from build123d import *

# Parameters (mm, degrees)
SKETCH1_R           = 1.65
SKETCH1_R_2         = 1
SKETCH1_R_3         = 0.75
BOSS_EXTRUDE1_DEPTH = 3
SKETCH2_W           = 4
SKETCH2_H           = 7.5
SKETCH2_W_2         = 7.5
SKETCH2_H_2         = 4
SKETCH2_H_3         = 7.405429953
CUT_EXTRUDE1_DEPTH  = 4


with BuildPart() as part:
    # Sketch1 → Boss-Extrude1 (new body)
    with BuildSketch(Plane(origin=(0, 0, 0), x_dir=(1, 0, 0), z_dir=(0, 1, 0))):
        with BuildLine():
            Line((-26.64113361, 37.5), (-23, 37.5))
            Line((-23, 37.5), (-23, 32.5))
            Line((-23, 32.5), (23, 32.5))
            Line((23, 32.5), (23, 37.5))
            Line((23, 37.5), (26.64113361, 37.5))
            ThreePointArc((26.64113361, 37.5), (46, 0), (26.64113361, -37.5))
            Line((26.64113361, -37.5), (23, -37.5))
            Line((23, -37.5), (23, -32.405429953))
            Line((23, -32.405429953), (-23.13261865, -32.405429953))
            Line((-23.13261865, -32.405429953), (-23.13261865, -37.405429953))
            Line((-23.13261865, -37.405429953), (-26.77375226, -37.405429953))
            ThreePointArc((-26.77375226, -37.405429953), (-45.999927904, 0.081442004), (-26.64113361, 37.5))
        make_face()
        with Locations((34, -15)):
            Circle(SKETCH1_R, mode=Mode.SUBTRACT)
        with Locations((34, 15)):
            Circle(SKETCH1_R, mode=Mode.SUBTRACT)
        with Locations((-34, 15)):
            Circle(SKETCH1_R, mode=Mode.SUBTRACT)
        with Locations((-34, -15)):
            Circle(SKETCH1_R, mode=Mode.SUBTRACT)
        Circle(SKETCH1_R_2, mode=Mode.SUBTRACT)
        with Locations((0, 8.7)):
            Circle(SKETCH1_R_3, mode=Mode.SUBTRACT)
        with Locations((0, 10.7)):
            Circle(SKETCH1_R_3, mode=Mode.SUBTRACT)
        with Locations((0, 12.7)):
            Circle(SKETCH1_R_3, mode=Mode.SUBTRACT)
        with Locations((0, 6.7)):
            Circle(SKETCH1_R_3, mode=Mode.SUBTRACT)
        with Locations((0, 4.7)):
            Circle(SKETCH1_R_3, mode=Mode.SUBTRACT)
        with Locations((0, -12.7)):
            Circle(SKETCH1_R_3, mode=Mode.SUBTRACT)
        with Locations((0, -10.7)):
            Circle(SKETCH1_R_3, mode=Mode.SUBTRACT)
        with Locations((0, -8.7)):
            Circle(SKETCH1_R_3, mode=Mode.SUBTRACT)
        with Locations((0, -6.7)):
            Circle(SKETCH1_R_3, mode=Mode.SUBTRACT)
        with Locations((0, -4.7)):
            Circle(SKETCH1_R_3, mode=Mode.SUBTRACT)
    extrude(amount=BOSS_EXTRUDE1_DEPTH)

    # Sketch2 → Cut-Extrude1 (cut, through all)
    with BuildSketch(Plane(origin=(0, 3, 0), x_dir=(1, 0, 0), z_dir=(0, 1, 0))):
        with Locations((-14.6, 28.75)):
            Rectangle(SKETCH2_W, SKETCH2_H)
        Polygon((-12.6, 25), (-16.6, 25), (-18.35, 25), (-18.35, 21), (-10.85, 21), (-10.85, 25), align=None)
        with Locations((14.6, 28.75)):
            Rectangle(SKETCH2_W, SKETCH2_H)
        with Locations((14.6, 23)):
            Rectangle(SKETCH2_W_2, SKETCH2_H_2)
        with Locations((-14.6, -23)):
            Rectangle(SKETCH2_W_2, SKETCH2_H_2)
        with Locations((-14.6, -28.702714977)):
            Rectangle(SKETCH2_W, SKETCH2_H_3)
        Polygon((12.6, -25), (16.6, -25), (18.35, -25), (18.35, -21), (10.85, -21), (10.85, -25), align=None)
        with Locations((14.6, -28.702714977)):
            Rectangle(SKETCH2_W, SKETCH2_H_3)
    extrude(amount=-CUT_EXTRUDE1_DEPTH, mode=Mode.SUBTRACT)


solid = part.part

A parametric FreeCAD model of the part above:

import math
import FreeCAD as App
import Part
import Sketcher
Q = App.Units.Quantity

doc = App.newDocument("Part")
body = doc.addObject("PartDesign::Body", "Body")

# Sketch on XZ plane
sketch1 = body.newObject("Sketcher::SketchObject", "Sketch")
sketch1.AttachmentSupport = (doc.getObject("XZ_Plane"), [""])
sketch1.MapMode = "FlatFace"
sketch1.addGeometry(Part.LineSegment(App.Vector(-23, -37.5, 0), App.Vector(-26.6, -37.5, 0)), False)
sketch1.addGeometry(Part.ArcOfCircle(Part.Circle(App.Vector(0, 0, 0), App.Vector(0, 0, 1), 46), math.radians(126), math.radians(235)), False)
sketch1.addGeometry(Part.LineSegment(App.Vector(-26.8, 37.4, 0), App.Vector(-23.1, 37.4, 0)), False)
sketch1.addGeometry(Part.LineSegment(App.Vector(-23.1, 37.4, 0), App.Vector(-23.1, 32.4, 0)), False)
sketch1.addGeometry(Part.LineSegment(App.Vector(-23.1, 32.4, 0), App.Vector(23, 32.4, 0)), False)
sketch1.addGeometry(Part.LineSegment(App.Vector(23, 32.4, 0), App.Vector(23, 37.5, 0)), False)
sketch1.addGeometry(Part.LineSegment(App.Vector(23, 37.5, 0), App.Vector(26.6, 37.5, 0)), False)
sketch1.addGeometry(Part.ArcOfCircle(Part.Circle(App.Vector(0, 0, 0), App.Vector(0, 0, 1), 46), math.radians(-55), math.radians(55)), False)
sketch1.addGeometry(Part.LineSegment(App.Vector(26.6, -37.5, 0), App.Vector(23, -37.5, 0)), False)
sketch1.addGeometry(Part.LineSegment(App.Vector(23, -37.5, 0), App.Vector(23, -32.5, 0)), False)
sketch1.addGeometry(Part.LineSegment(App.Vector(23, -32.5, 0), App.Vector(-23, -32.5, 0)), False)
sketch1.addGeometry(Part.LineSegment(App.Vector(-23, -32.5, 0), App.Vector(-23, -37.5, 0)), False)
sketch1.addGeometry(Part.Circle(App.Vector(34, 15, 0), App.Vector(0, 0, 1), 1.6), False)
sketch1.addGeometry(Part.Circle(App.Vector(0, 12.7, 0), App.Vector(0, 0, 1), 0.8), False)
sketch1.addGeometry(Part.Circle(App.Vector(0, 10.7, 0), App.Vector(0, 0, 1), 0.8), False)
sketch1.addGeometry(Part.Circle(App.Vector(0, 8.7, 0), App.Vector(0, 0, 1), 0.8), False)
sketch1.addGeometry(Part.Circle(App.Vector(-34, 15, 0), App.Vector(0, 0, 1), 1.6), False)
sketch1.addGeometry(Part.Circle(App.Vector(0, 6.7, 0), App.Vector(0, 0, 1), 0.8), False)
sketch1.addGeometry(Part.Circle(App.Vector(0, 4.7, 0), App.Vector(0, 0, 1), 0.8), False)
sketch1.addGeometry(Part.Circle(App.Vector(34, -15, 0), App.Vector(0, 0, 1), 1.6), False)
sketch1.addGeometry(Part.Circle(App.Vector(0, 0, 0), App.Vector(0, 0, 1), 1), False)
sketch1.addGeometry(Part.Circle(App.Vector(0, -4.7, 0), App.Vector(0, 0, 1), 0.8), False)
sketch1.addGeometry(Part.Circle(App.Vector(0, -6.7, 0), App.Vector(0, 0, 1), 0.8), False)
sketch1.addGeometry(Part.Circle(App.Vector(0, -8.7, 0), App.Vector(0, 0, 1), 0.8), False)
sketch1.addGeometry(Part.Circle(App.Vector(0, -10.7, 0), App.Vector(0, 0, 1), 0.8), False)
sketch1.addGeometry(Part.Circle(App.Vector(0, -12.7, 0), App.Vector(0, 0, 1), 0.8), False)
sketch1.addGeometry(Part.Circle(App.Vector(-34, -15, 0), App.Vector(0, 0, 1), 1.6), False)
sketch1.addConstraint(Sketcher.Constraint("Coincident", 0, 2, 1, 2))
sketch1.addConstraint(Sketcher.Constraint("Coincident", 1, 1, 2, 1))
sketch1.addConstraint(Sketcher.Constraint("Coincident", 2, 2, 3, 1))
sketch1.addConstraint(Sketcher.Constraint("Coincident", 3, 2, 4, 1))
sketch1.addConstraint(Sketcher.Constraint("Coincident", 4, 2, 5, 1))
sketch1.addConstraint(Sketcher.Constraint("Coincident", 5, 2, 6, 1))
sketch1.addConstraint(Sketcher.Constraint("Coincident", 6, 2, 7, 2))
sketch1.addConstraint(Sketcher.Constraint("Coincident", 7, 1, 8, 1))
sketch1.addConstraint(Sketcher.Constraint("Coincident", 8, 2, 9, 1))
sketch1.addConstraint(Sketcher.Constraint("Coincident", 9, 2, 10, 1))
sketch1.addConstraint(Sketcher.Constraint("Coincident", 10, 2, 11, 1))
sketch1.addConstraint(Sketcher.Constraint("Coincident", 11, 2, 0, 1))
sketch1.addConstraint(Sketcher.Constraint("Horizontal", 0))
sketch1.addConstraint(Sketcher.Constraint("Horizontal", 2))
sketch1.addConstraint(Sketcher.Constraint("Vertical", 3))
sketch1.addConstraint(Sketcher.Constraint("Horizontal", 4))
sketch1.addConstraint(Sketcher.Constraint("Vertical", 5))
sketch1.addConstraint(Sketcher.Constraint("Horizontal", 6))
sketch1.addConstraint(Sketcher.Constraint("Horizontal", 8))
sketch1.addConstraint(Sketcher.Constraint("Vertical", 9))
sketch1.addConstraint(Sketcher.Constraint("Horizontal", 10))
sketch1.addConstraint(Sketcher.Constraint("Vertical", 11))
sketch1.addConstraint(Sketcher.Constraint("Coincident", 1, 3, -1, 1))
sketch1.addConstraint(Sketcher.Constraint("Coincident", 7, 3, -1, 1))
sketch1.addConstraint(Sketcher.Constraint("Coincident", 20, 3, -1, 1))
sketch1.addConstraint(Sketcher.Constraint("Equal", 1, 7))
sketch1.addConstraint(Sketcher.Constraint("Equal", 13, 14))
sketch1.addConstraint(Sketcher.Constraint("Equal", 14, 15))
sketch1.addConstraint(Sketcher.Constraint("Equal", 12, 16))
sketch1.addConstraint(Sketcher.Constraint("Equal", 15, 17))
sketch1.addConstraint(Sketcher.Constraint("Equal", 17, 18))
sketch1.addConstraint(Sketcher.Constraint("Equal", 16, 19))
sketch1.addConstraint(Sketcher.Constraint("Equal", 18, 21))
sketch1.addConstraint(Sketcher.Constraint("Equal", 21, 22))
sketch1.addConstraint(Sketcher.Constraint("Equal", 22, 23))
sketch1.addConstraint(Sketcher.Constraint("Equal", 23, 24))
sketch1.addConstraint(Sketcher.Constraint("Equal", 24, 25))
sketch1.addConstraint(Sketcher.Constraint("Equal", 19, 26))
sketch1.addConstraint(Sketcher.Constraint("Symmetric", 16, 3, 19, 3, -1, 1))
sketch1.addConstraint(Sketcher.Constraint("Symmetric", 18, 3, 21, 3, -1, 1))
sketch1.addConstraint(Sketcher.Constraint("Symmetric", 17, 3, 22, 3, -1, 1))
sketch1.addConstraint(Sketcher.Constraint("Symmetric", 15, 3, 23, 3, -1, 1))
sketch1.addConstraint(Sketcher.Constraint("Symmetric", 14, 3, 24, 3, -1, 1))
sketch1.addConstraint(Sketcher.Constraint("Symmetric", 13, 3, 25, 3, -1, 1))
sketch1.addConstraint(Sketcher.Constraint("Symmetric", 12, 3, 26, 3, -1, 1))
sketch1.addConstraint(Sketcher.Constraint("Symmetric", 5, 2, 11, 2, -1, 1))
sketch1.addConstraint(Sketcher.Constraint("Symmetric", 12, 3, 16, 3, -2))
sketch1.addConstraint(Sketcher.Constraint("Symmetric", 8, 2, 11, 2, -2))
sketch1.addConstraint(Sketcher.Constraint("PointOnObject", 13, 3, -2))
sketch1.addConstraint(Sketcher.Constraint("PointOnObject", 14, 3, -2))
sketch1.addConstraint(Sketcher.Constraint("PointOnObject", 15, 3, -2))
sketch1.addConstraint(Sketcher.Constraint("PointOnObject", 17, 3, -2))
sketch1.addConstraint(Sketcher.Constraint("PointOnObject", 18, 3, -2))
sketch1.addConstraint(Sketcher.Constraint("Equal", 0, 2))
sketch1.addConstraint(Sketcher.Constraint("Equal", 3, 9))
sketch1.addConstraint(Sketcher.Constraint("Diameter", 20, Q("2 mm")))
sketch1.addConstraint(Sketcher.Constraint("Radius", 1, Q("46 mm")))
sketch1.addConstraint(Sketcher.Constraint("Diameter", 12, Q("3.3 mm")))
sketch1.addConstraint(Sketcher.Constraint("Diameter", 13, Q("1.5 mm")))
sketch1.addConstraint(Sketcher.Constraint("DistanceX", 10, 2, 10, 1, Q("46 mm")))
sketch1.addConstraint(Sketcher.Constraint("DistanceY", 3, 2, 3, 1, Q("5 mm")))
sketch1.addConstraint(Sketcher.Constraint("DistanceX", -1, 1, 12, 3, Q("34 mm")))
sketch1.addConstraint(Sketcher.Constraint("DistanceY", -1, 1, 12, 3, Q("15 mm")))
sketch1.addConstraint(Sketcher.Constraint("DistanceY", 14, 3, 13, 3, Q("2 mm")))
sketch1.addConstraint(Sketcher.Constraint("DistanceY", 15, 3, 14, 3, Q("2 mm")))
sketch1.addConstraint(Sketcher.Constraint("DistanceY", 17, 3, 15, 3, Q("2 mm")))
sketch1.addConstraint(Sketcher.Constraint("DistanceY", 18, 3, 17, 3, Q("2 mm")))
sketch1.addConstraint(Sketcher.Constraint("DistanceY", -1, 1, 13, 3, Q("12.7 mm")))
sketch1.addConstraint(Sketcher.Constraint("DistanceY", 0, 2, -1, 1, Q("37.5 mm")))
sketch1.addConstraint(Sketcher.Constraint("DistanceX", 4, 1, 4, 2, Q("46.132619 mm")))
pad1 = body.newObject("PartDesign::Pad", "Pad")
pad1.Profile = sketch1
pad1.Length = 3
pad1.Reversed = True

# Sketch on XZ plane
sketch2 = body.newObject("Sketcher::SketchObject", "Sketch001")
sketch2.AttachmentSupport = (doc.getObject("XZ_Plane"), [""])
sketch2.MapMode = "FlatFace"
sketch2.AttachmentOffset = App.Placement(App.Vector(0, 0, -3), App.Rotation())
sketch2.addGeometry(Part.LineSegment(App.Vector(-16.6, -32.5, 0), App.Vector(-16.6, -25, 0)), False)
sketch2.addGeometry(Part.LineSegment(App.Vector(-16.6, -25, 0), App.Vector(-18.4, -25, 0)), False)
sketch2.addGeometry(Part.LineSegment(App.Vector(-18.4, -25, 0), App.Vector(-18.4, -21, 0)), False)
sketch2.addGeometry(Part.LineSegment(App.Vector(-18.4, -21, 0), App.Vector(-10.8, -21, 0)), False)
sketch2.addGeometry(Part.LineSegment(App.Vector(-10.8, -21, 0), App.Vector(-10.8, -25, 0)), False)
sketch2.addGeometry(Part.LineSegment(App.Vector(-10.8, -25, 0), App.Vector(-12.6, -25, 0)), False)
sketch2.addGeometry(Part.LineSegment(App.Vector(-12.6, -25, 0), App.Vector(-12.6, -32.5, 0)), False)
sketch2.addGeometry(Part.LineSegment(App.Vector(-12.6, -32.5, 0), App.Vector(-16.6, -32.5, 0)), False)
sketch2.addGeometry(Part.LineSegment(App.Vector(12.6, -32.5, 0), App.Vector(12.6, -25, 0)), False)
sketch2.addGeometry(Part.LineSegment(App.Vector(12.6, -25, 0), App.Vector(10.8, -25, 0)), False)
sketch2.addGeometry(Part.LineSegment(App.Vector(10.8, -25, 0), App.Vector(10.8, -21, 0)), False)
sketch2.addGeometry(Part.LineSegment(App.Vector(10.8, -21, 0), App.Vector(18.4, -21, 0)), False)
sketch2.addGeometry(Part.LineSegment(App.Vector(18.4, -21, 0), App.Vector(18.4, -25, 0)), False)
sketch2.addGeometry(Part.LineSegment(App.Vector(18.4, -25, 0), App.Vector(16.6, -25, 0)), False)
sketch2.addGeometry(Part.LineSegment(App.Vector(16.6, -25, 0), App.Vector(16.6, -32.5, 0)), False)
sketch2.addGeometry(Part.LineSegment(App.Vector(16.6, -32.5, 0), App.Vector(12.6, -32.5, 0)), False)
sketch2.addGeometry(Part.LineSegment(App.Vector(-18.4, 21, 0), App.Vector(-18.4, 25, 0)), False)
sketch2.addGeometry(Part.LineSegment(App.Vector(-18.4, 25, 0), App.Vector(-16.6, 25, 0)), False)
sketch2.addGeometry(Part.LineSegment(App.Vector(-16.6, 25, 0), App.Vector(-16.6, 32.4, 0)), False)
sketch2.addGeometry(Part.LineSegment(App.Vector(-16.6, 32.4, 0), App.Vector(-12.6, 32.4, 0)), False)
sketch2.addGeometry(Part.LineSegment(App.Vector(-12.6, 32.4, 0), App.Vector(-12.6, 25, 0)), False)
sketch2.addGeometry(Part.LineSegment(App.Vector(-12.6, 25, 0), App.Vector(-10.8, 25, 0)), False)
sketch2.addGeometry(Part.LineSegment(App.Vector(-10.8, 25, 0), App.Vector(-10.8, 21, 0)), False)
sketch2.addGeometry(Part.LineSegment(App.Vector(-10.8, 21, 0), App.Vector(-18.4, 21, 0)), False)
sketch2.addGeometry(Part.LineSegment(App.Vector(18.4, 25, 0), App.Vector(18.4, 21, 0)), False)
sketch2.addGeometry(Part.LineSegment(App.Vector(18.4, 21, 0), App.Vector(10.8, 21, 0)), False)
sketch2.addGeometry(Part.LineSegment(App.Vector(10.8, 21, 0), App.Vector(10.8, 25, 0)), False)
sketch2.addGeometry(Part.LineSegment(App.Vector(10.8, 25, 0), App.Vector(12.6, 25, 0)), False)
sketch2.addGeometry(Part.LineSegment(App.Vector(12.6, 25, 0), App.Vector(12.6, 32.4, 0)), False)
sketch2.addGeometry(Part.LineSegment(App.Vector(12.6, 32.4, 0), App.Vector(16.6, 32.4, 0)), False)
sketch2.addGeometry(Part.LineSegment(App.Vector(16.6, 32.4, 0), App.Vector(16.6, 25, 0)), False)
sketch2.addGeometry(Part.LineSegment(App.Vector(16.6, 25, 0), App.Vector(18.4, 25, 0)), False)
sketch2.addConstraint(Sketcher.Constraint("Coincident", 0, 2, 1, 1))
sketch2.addConstraint(Sketcher.Constraint("Coincident", 1, 2, 2, 1))
sketch2.addConstraint(Sketcher.Constraint("Coincident", 2, 2, 3, 1))
sketch2.addConstraint(Sketcher.Constraint("Coincident", 3, 2, 4, 1))
sketch2.addConstraint(Sketcher.Constraint("Coincident", 4, 2, 5, 1))
sketch2.addConstraint(Sketcher.Constraint("Coincident", 5, 2, 6, 1))
sketch2.addConstraint(Sketcher.Constraint("Coincident", 6, 2, 7, 1))
sketch2.addConstraint(Sketcher.Constraint("Coincident", 7, 2, 0, 1))
sketch2.addConstraint(Sketcher.Constraint("Coincident", 8, 2, 9, 1))
sketch2.addConstraint(Sketcher.Constraint("Coincident", 9, 2, 10, 1))
sketch2.addConstraint(Sketcher.Constraint("Coincident", 10, 2, 11, 1))
sketch2.addConstraint(Sketcher.Constraint("Coincident", 11, 2, 12, 1))
sketch2.addConstraint(Sketcher.Constraint("Coincident", 12, 2, 13, 1))
sketch2.addConstraint(Sketcher.Constraint("Coincident", 13, 2, 14, 1))
sketch2.addConstraint(Sketcher.Constraint("Coincident", 14, 2, 15, 1))
sketch2.addConstraint(Sketcher.Constraint("Coincident", 15, 2, 8, 1))
sketch2.addConstraint(Sketcher.Constraint("Coincident", 16, 2, 17, 1))
sketch2.addConstraint(Sketcher.Constraint("Coincident", 17, 2, 18, 1))
sketch2.addConstraint(Sketcher.Constraint("Coincident", 18, 2, 19, 1))
sketch2.addConstraint(Sketcher.Constraint("Coincident", 19, 2, 20, 1))
sketch2.addConstraint(Sketcher.Constraint("Coincident", 20, 2, 21, 1))
sketch2.addConstraint(Sketcher.Constraint("Coincident", 21, 2, 22, 1))
sketch2.addConstraint(Sketcher.Constraint("Coincident", 22, 2, 23, 1))
sketch2.addConstraint(Sketcher.Constraint("Coincident", 23, 2, 16, 1))
sketch2.addConstraint(Sketcher.Constraint("Coincident", 24, 2, 25, 1))
sketch2.addConstraint(Sketcher.Constraint("Coincident", 25, 2, 26, 1))
sketch2.addConstraint(Sketcher.Constraint("Coincident", 26, 2, 27, 1))
sketch2.addConstraint(Sketcher.Constraint("Coincident", 27, 2, 28, 1))
sketch2.addConstraint(Sketcher.Constraint("Coincident", 28, 2, 29, 1))
sketch2.addConstraint(Sketcher.Constraint("Coincident", 29, 2, 30, 1))
sketch2.addConstraint(Sketcher.Constraint("Coincident", 30, 2, 31, 1))
sketch2.addConstraint(Sketcher.Constraint("Coincident", 31, 2, 24, 1))
sketch2.addConstraint(Sketcher.Constraint("Vertical", 0))
sketch2.addConstraint(Sketcher.Constraint("Horizontal", 1))
sketch2.addConstraint(Sketcher.Constraint("Vertical", 2))
sketch2.addConstraint(Sketcher.Constraint("Horizontal", 3))
sketch2.addConstraint(Sketcher.Constraint("Vertical", 4))
sketch2.addConstraint(Sketcher.Constraint("Horizontal", 5))
sketch2.addConstraint(Sketcher.Constraint("Vertical", 6))
sketch2.addConstraint(Sketcher.Constraint("Horizontal", 7))
sketch2.addConstraint(Sketcher.Constraint("Vertical", 8))
sketch2.addConstraint(Sketcher.Constraint("Horizontal", 9))
sketch2.addConstraint(Sketcher.Constraint("Vertical", 10))
sketch2.addConstraint(Sketcher.Constraint("Horizontal", 11))
sketch2.addConstraint(Sketcher.Constraint("Vertical", 12))
sketch2.addConstraint(Sketcher.Constraint("Horizontal", 13))
sketch2.addConstraint(Sketcher.Constraint("Vertical", 14))
sketch2.addConstraint(Sketcher.Constraint("Horizontal", 15))
sketch2.addConstraint(Sketcher.Constraint("Vertical", 16))
sketch2.addConstraint(Sketcher.Constraint("Horizontal", 17))
sketch2.addConstraint(Sketcher.Constraint("Vertical", 18))
sketch2.addConstraint(Sketcher.Constraint("Horizontal", 19))
sketch2.addConstraint(Sketcher.Constraint("Vertical", 20))
sketch2.addConstraint(Sketcher.Constraint("Horizontal", 21))
sketch2.addConstraint(Sketcher.Constraint("Vertical", 22))
sketch2.addConstraint(Sketcher.Constraint("Horizontal", 23))
sketch2.addConstraint(Sketcher.Constraint("Vertical", 24))
sketch2.addConstraint(Sketcher.Constraint("Horizontal", 25))
sketch2.addConstraint(Sketcher.Constraint("Vertical", 26))
sketch2.addConstraint(Sketcher.Constraint("Horizontal", 27))
sketch2.addConstraint(Sketcher.Constraint("Vertical", 28))
sketch2.addConstraint(Sketcher.Constraint("Horizontal", 29))
sketch2.addConstraint(Sketcher.Constraint("Vertical", 30))
sketch2.addConstraint(Sketcher.Constraint("Horizontal", 31))
sketch2.addConstraint(Sketcher.Constraint("Symmetric", 12, 2, 16, 2, -1, 1))
sketch2.addConstraint(Sketcher.Constraint("Symmetric", 8, 2, 20, 2, -1, 1))
sketch2.addConstraint(Sketcher.Constraint("Symmetric", 10, 2, 22, 2, -1, 1))
sketch2.addConstraint(Sketcher.Constraint("Symmetric", 2, 2, 24, 2, -1, 1))
sketch2.addConstraint(Sketcher.Constraint("Symmetric", 4, 2, 26, 2, -1, 1))
sketch2.addConstraint(Sketcher.Constraint("Symmetric", 0, 2, 30, 2, -1, 1))
sketch2.addConstraint(Sketcher.Constraint("Symmetric", 5, 2, 8, 2, -2))
sketch2.addConstraint(Sketcher.Constraint("Symmetric", 3, 2, 10, 2, -2))
sketch2.addConstraint(Sketcher.Constraint("Symmetric", 1, 2, 12, 2, -2))
sketch2.addConstraint(Sketcher.Constraint("Symmetric", 7, 2, 14, 2, -2))
sketch2.addConstraint(Sketcher.Constraint("Symmetric", 19, 2, 28, 2, -2))
sketch2.addConstraint(Sketcher.Constraint("Horizontal", 1, 2, 4, 2))
sketch2.addConstraint(Sketcher.Constraint("Vertical", 7, 2, 17, 2))
sketch2.addConstraint(Sketcher.Constraint("Equal", 1, 5))
sketch2.addConstraint(Sketcher.Constraint("Equal", 25, 0))
sketch2.addConstraint(Sketcher.Constraint("Equal", 29, 2))
sketch2.addConstraint(Sketcher.Constraint("DistanceX", 7, 2, 7, 1, Q("4 mm")))
sketch2.addConstraint(Sketcher.Constraint("DistanceX", 3, 1, 3, 2, Q("7.5 mm")))
sketch2.addConstraint(Sketcher.Constraint("DistanceY", 0, 2, -1, 1, Q("25 mm")))
sketch2.addConstraint(Sketcher.Constraint("DistanceX", 0, 2, -1, 1, Q("16.6 mm")))
sketch2.addConstraint(Sketcher.Constraint("DistanceY", 18, 1, 18, 2, Q("7.40543 mm")))
pocket1 = body.newObject("PartDesign::Pocket", "Pocket")
pocket1.Profile = sketch2
pocket1.Type = "ThroughAll"
pocket1.Reversed = True

doc.recompute()
